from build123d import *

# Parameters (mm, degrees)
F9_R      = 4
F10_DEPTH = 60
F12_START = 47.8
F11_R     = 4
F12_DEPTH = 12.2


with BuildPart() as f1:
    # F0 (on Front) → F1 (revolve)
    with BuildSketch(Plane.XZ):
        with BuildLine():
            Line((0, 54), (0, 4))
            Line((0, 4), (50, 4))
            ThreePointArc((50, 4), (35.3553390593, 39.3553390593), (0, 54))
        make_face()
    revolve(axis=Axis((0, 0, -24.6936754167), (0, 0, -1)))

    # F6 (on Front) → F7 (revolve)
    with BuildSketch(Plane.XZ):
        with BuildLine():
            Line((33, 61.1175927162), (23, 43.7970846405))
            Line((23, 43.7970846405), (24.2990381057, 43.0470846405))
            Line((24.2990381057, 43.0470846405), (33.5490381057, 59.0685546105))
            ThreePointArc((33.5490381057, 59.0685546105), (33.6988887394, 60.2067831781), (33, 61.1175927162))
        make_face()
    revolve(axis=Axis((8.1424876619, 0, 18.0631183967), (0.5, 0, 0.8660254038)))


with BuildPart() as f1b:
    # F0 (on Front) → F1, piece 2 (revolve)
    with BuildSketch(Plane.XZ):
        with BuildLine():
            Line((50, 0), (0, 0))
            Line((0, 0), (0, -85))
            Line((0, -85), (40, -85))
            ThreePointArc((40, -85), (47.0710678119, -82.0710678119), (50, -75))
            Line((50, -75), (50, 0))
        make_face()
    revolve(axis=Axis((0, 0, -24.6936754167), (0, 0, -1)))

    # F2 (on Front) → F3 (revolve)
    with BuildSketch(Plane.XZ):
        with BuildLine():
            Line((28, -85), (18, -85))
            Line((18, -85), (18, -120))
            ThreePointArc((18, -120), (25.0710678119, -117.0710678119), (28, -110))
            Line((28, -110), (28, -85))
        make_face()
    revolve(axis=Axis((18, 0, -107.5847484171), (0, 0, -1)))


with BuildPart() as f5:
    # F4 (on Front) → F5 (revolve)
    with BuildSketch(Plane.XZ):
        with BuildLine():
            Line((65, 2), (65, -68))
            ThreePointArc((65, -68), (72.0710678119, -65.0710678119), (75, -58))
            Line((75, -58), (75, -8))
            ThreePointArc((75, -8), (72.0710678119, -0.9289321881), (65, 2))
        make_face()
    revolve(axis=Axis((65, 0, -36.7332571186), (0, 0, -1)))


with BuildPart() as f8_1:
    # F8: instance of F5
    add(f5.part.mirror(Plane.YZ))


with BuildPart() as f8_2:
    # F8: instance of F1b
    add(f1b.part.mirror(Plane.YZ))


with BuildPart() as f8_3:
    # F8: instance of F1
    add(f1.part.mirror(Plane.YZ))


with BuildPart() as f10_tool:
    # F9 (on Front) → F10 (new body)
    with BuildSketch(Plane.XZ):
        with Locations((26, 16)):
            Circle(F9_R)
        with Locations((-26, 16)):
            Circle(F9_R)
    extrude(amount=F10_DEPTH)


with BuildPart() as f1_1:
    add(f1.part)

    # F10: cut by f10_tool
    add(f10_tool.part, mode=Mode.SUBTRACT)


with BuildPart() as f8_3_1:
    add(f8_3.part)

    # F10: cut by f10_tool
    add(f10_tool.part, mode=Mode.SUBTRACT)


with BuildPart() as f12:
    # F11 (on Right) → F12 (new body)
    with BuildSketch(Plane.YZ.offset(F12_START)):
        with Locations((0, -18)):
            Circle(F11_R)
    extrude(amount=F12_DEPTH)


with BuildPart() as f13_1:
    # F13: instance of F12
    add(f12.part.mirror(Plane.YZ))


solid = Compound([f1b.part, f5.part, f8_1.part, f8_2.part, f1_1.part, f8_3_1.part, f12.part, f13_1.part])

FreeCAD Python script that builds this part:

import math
import FreeCAD as App
import Part
import Sketcher

V = App.Vector
Q = App.Units.Quantity

doc = App.newDocument("Part")
params = doc.addObject("Spreadsheet::Sheet", "Params")
for row, (alias, value) in enumerate([
    ("sketch1_radius", "50 mm"),
    ("revolution_angle", "360 deg"),
    ("sketch2_radius", "1.5 mm"),
    ("sketch2_length", "20 mm"),
    ("sketch2_length2", "1.5 mm"),
    ("revolution2_angle", "360 deg"),
    ("sketch3_radius", "10 mm"),
    ("sketch3_width", "50 mm"),
    ("sketch3_height", "85 mm"),
    ("revolution3_angle", "360 deg"),
    ("sketch4_radius", "10 mm"),
    ("sketch4_height", "35 mm"),
    ("revolution4_angle", "360 deg"),
    ("sketch5_radius", "10 mm"),
    ("sketch5_height", "70 mm"),
    ("revolution5_angle", "360 deg"),
    ("sketch6_diameter", "8 mm"),
    ("pad1_length", "60 mm"),
    ("sketch7_diameter", "8 mm"),
    ("pad2_length", "12.2 mm"),
], start=1):
    params.set(f"A{row}", alias)
    params.set(f"B{row}", "=" + value)
    params.setAlias(f"B{row}", alias)

body = doc.addObject("PartDesign::Body", "Body")

sketch1 = body.newObject("Sketcher::SketchObject", "Sketch")
sketch1.AttachmentSupport = (doc.getObject("XZ_Plane"), [""])
sketch1.MapMode = "FlatFace"
sketch1.addGeometry([
    Part.LineSegment(V(0, 54, 0), V(0, 4, 0)),
    Part.LineSegment(V(0, 4, 0), V(50, 4, 0)),
    Part.ArcOfCircle(Part.Circle(V(0, 4, 0), V(0, 0, 1), 50), math.radians(0), math.radians(90)),
], False)
sketch1.addConstraint([
    Sketcher.Constraint("Coincident", 0, 2, 1, 1),
    Sketcher.Constraint("Coincident", 1, 2, 2, 1),
    Sketcher.Constraint("Coincident", 2, 2, 0, 1),
    Sketcher.Constraint("Vertical", 0),
    Sketcher.Constraint("Horizontal", 1),
    Sketcher.Constraint("Coincident", 0, 2, 2, 3),
    Sketcher.Constraint("PointOnObject", 2, 3, -2),
    Sketcher.Constraint("Radius", 2, Q("50 mm")),
    Sketcher.Constraint("DistanceY", -1, 1, 2, 3, Q("4 mm")),
])
sketch1.setExpression("Constraints[7]", "Params.sketch1_radius")
revolution = body.newObject("PartDesign::Revolution", "Revolution")
revolution.Profile = sketch1
revolution.ReferenceAxis = (sketch1, ["V_Axis"])
revolution.setExpression("Angle", "Params.revolution_angle")

sketch2 = body.newObject("Sketcher::SketchObject", "Sketch001")
sketch2.AttachmentSupport = (doc.getObject("XZ_Plane"), [""])
sketch2.MapMode = "FlatFace"
sketch2.addGeometry([
    Part.LineSegment(V(33, 61.1, 0), V(23, 43.8, 0)),
    Part.LineSegment(V(23, 43.8, 0), V(24.3, 43, 0)),
    Part.LineSegment(V(24.3, 43, 0), V(33.5, 59.1, 0)),
    Part.ArcOfCircle(Part.Circle(V(32.2, 59.8, 0), V(0, 0, 1), 1.5), math.radians(-30), math.radians(60)),
], False)
sketch2.addGeometry(Part.LineSegment(V(23, 43.8, 0), V(33, 61.1, 0)), True)
sketch2.addConstraint([
    Sketcher.Constraint("Coincident", 0, 2, 1, 1),
    Sketcher.Constraint("Coincident", 1, 2, 2, 1),
    Sketcher.Constraint("Tangent", 2, 2, 3, 1),
    Sketcher.Constraint("Coincident", 3, 2, 0, 1),
    Sketcher.Constraint("Coincident", 4, 1, 0, 2),
    Sketcher.Constraint("Coincident", 4, 2, 3, 2),
    Sketcher.Constraint("Perpendicular", 0, 1),
    Sketcher.Constraint("Perpendicular", 1, 2),
    Sketcher.Constraint("Radius", 3, Q("1.5 mm")),
    Sketcher.Constraint("Angle", 0, Q("-120 deg")),
    Sketcher.Constraint("Distance", 0, Q("20 mm")),
    Sketcher.Constraint("DistanceX", -1, 1, 0, 2, Q("23 mm")),
    Sketcher.Constraint("Distance", 1, Q("1.5 mm")),
    Sketcher.Constraint("DistanceY", -1, 1, 3, 3, Q("59.818555 mm")),
])
sketch2.setExpression("Constraints[8]", "Params.sketch2_radius")
sketch2.setExpression("Constraints[10]", "Params.sketch2_length")
sketch2.setExpression("Constraints[12]", "Params.sketch2_length2")
revolution2 = body.newObject("PartDesign::Revolution", "Revolution001")
revolution2.Profile = sketch2
revolution2.ReferenceAxis = (sketch2, ["Axis0"])
revolution2.setExpression("Angle", "Params.revolution2_angle")
body2 = doc.addObject("PartDesign::Body", "Body001")

sketch3 = body2.newObject("Sketcher::SketchObject", "Sketch002")
sketch3.AttachmentSupport = (doc.getObject("XZ_Plane001"), [""])
sketch3.MapMode = "FlatFace"
sketch3.addGeometry([
    Part.LineSegment(V(50, 0, 0), V(0, 0, 0)),
    Part.LineSegment(V(0, 0, 0), V(0, -85, 0)),
    Part.LineSegment(V(0, -85, 0), V(40, -85, 0)),
    Part.ArcOfCircle(Part.Circle(V(40, -75, 0), V(0, 0, 1), 10), math.radians(-90), math.radians(0)),
    Part.LineSegment(V(50, -75, 0), V(50, 0, 0)),
], False)
sketch3.addConstraint([
    Sketcher.Constraint("Coincident", 0, 2, 1, 1),
    Sketcher.Constraint("Coincident", 1, 2, 2, 1),
    Sketcher.Constraint("Tangent", 2, 2, 3, 1),
    Sketcher.Constraint("Tangent", 3, 2, 4, 1),
    Sketcher.Constraint("Coincident", 4, 2, 0, 1),
    Sketcher.Constraint("Horizontal", 0),
    Sketcher.Constraint("Vertical", 1),
    Sketcher.Constraint("Horizontal", 2),
    Sketcher.Constraint("Vertical", 4),
    Sketcher.Constraint("Coincident", 0, 2, -1, 1),
    Sketcher.Constraint("Radius", 3, Q("10 mm")),
    Sketcher.Constraint("DistanceX", 0, 2, 0, 1, Q("50 mm")),
    Sketcher.Constraint("DistanceY", 1, 2, 1, 1, Q("85 mm")),
])
sketch3.setExpression("Constraints[10]", "Params.sketch3_radius")
sketch3.setExpression("Constraints[11]", "Params.sketch3_width")
sketch3.setExpression("Constraints[12]", "Params.sketch3_height")
revolution3 = body2.newObject("PartDesign::Revolution", "Revolution002")
revolution3.Profile = sketch3
revolution3.ReferenceAxis = (sketch3, ["V_Axis"])
revolution3.setExpression("Angle", "Params.revolution3_angle")

sketch4 = body2.newObject("Sketcher::SketchObject", "Sketch003")
sketch4.AttachmentSupport = (doc.getObject("XZ_Plane001"), [""])
sketch4.MapMode = "FlatFace"
sketch4.addGeometry([
    Part.LineSegment(V(28, -85, 0), V(18, -85, 0)),
    Part.LineSegment(V(18, -85, 0), V(18, -120, 0)),
    Part.ArcOfCircle(Part.Circle(V(18, -110, 0), V(0, 0, 1), 10), math.radians(-90), math.radians(0)),
    Part.LineSegment(V(28, -110, 0), V(28, -85, 0)),
], False)
sketch4.addGeometry(Part.LineSegment(V(18, -85, 0), V(18, -120, 0)), True)
sketch4.addConstraint([
    Sketcher.Constraint("Coincident", 0, 2, 1, 1),
    Sketcher.Constraint("Coincident", 1, 2, 2, 1),
    Sketcher.Constraint("Tangent", 2, 2, 3, 1),
    Sketcher.Constraint("Coincident", 3, 2, 0, 1),
    Sketcher.Constraint("Horizontal", 0),
    Sketcher.Constraint("Vertical", 1),
    Sketcher.Constraint("Vertical", 3),
    Sketcher.Constraint("Vertical", 4),
    Sketcher.Constraint("Coincident", 4, 1, 0, 2),
    Sketcher.Constraint("Vertical", 2, 3, 0, 2),
    Sketcher.Constraint("Equal", 1, 4),
    Sketcher.Constraint("Radius", 2, Q("10 mm")),
    Sketcher.Constraint("DistanceY", 1, 2, 1, 1, Q("35 mm")),
    Sketcher.Constraint("DistanceX", -1, 1, 2, 3, Q("18 mm")),
    Sketcher.Constraint("DistanceY", 2, 3, -1, 1, Q("110 mm")),
])
sketch4.setExpression("Constraints[11]", "Params.sketch4_radius")
sketch4.setExpression("Constraints[12]", "Params.sketch4_height")
revolution4 = body2.newObject("PartDesign::Revolution", "Revolution003")
revolution4.Profile = sketch4
revolution4.ReferenceAxis = (sketch4, ["Axis0"])
revolution4.setExpression("Angle", "Params.revolution4_angle")
body3 = doc.addObject("PartDesign::Body", "Body002")

sketch5 = body3.newObject("Sketcher::SketchObject", "Sketch004")
sketch5.AttachmentSupport = (doc.getObject("XZ_Plane002"), [""])
sketch5.MapMode = "FlatFace"
sketch5.addGeometry([
    Part.LineSegment(V(65, 2, 0), V(65, -68, 0)),
    Part.ArcOfCircle(Part.Circle(V(65, -58, 0), V(0, 0, 1), 10), math.radians(-90), math.radians(0)),
    Part.LineSegment(V(75, -58, 0), V(75, -8, 0)),
    Part.ArcOfCircle(Part.Circle(V(65, -8, 0), V(0, 0, 1), 10), math.radians(0), math.radians(90)),
], False)
sketch5.addGeometry(Part.LineSegment(V(65, 2, 0), V(65, -68, 0)), True)
sketch5.addConstraint([
    Sketcher.Constraint("Coincident", 0, 2, 1, 1),
    Sketcher.Constraint("Tangent", 1, 2, 2, 1),
    Sketcher.Constraint("Tangent", 2, 2, 3, 1),
    Sketcher.Constraint("Coincident", 3, 2, 0, 1),
    Sketcher.Constraint("Vertical", 0),
    Sketcher.Constraint("Vertical", 2),
    Sketcher.Constraint("Vertical", 4),
    Sketcher.Constraint("Coincident", 4, 1, 3, 2),
    Sketcher.Constraint("Equal", 1, 3),
    Sketcher.Constraint("Vertical", 3, 3, 0, 2),
    Sketcher.Constraint("Equal", 0, 4),
    Sketcher.Constraint("Radius", 1, Q("10 mm")),
    Sketcher.Constraint("DistanceY", 0, 2, 0, 1, Q("70 mm")),
    Sketcher.Constraint("DistanceX", -1, 1, 1, 3, Q("65 mm")),
    Sketcher.Constraint("DistanceY", 1, 3, -1, 1, Q("58 mm")),
])
sketch5.setExpression("Constraints[11]", "Params.sketch5_radius")
sketch5.setExpression("Constraints[12]", "Params.sketch5_height")
revolution5 = body3.newObject("PartDesign::Revolution", "Revolution004")
revolution5.Profile = sketch5
revolution5.ReferenceAxis = (sketch5, ["Axis0"])
revolution5.setExpression("Angle", "Params.revolution5_angle")
body4 = doc.addObject("PartDesign::Body", "Body003")
doc.recompute()

mirroring = doc.addObject("Part::Mirroring", "Mirroring")
mirroring.Source = body3
mirroring.Base = V(0, 0, 0)
mirroring.Normal = V(1, 0, 0)
body4.BaseFeature = mirroring
doc.recompute()
body5 = doc.addObject("PartDesign::Body", "Body004")
doc.recompute()

mirroring2 = doc.addObject("Part::Mirroring", "Mirroring001")
mirroring2.Source = body2
mirroring2.Base = V(0, 0, 0)
mirroring2.Normal = V(1, 0, 0)
body5.BaseFeature = mirroring2
doc.recompute()
body6 = doc.addObject("PartDesign::Body", "Body005")
doc.recompute()

mirroring3 = doc.addObject("Part::Mirroring", "Mirroring002")
mirroring3.Source = body
mirroring3.Base = V(0, 0, 0)
mirroring3.Normal = V(1, 0, 0)
body6.BaseFeature = mirroring3
doc.recompute()
body7 = doc.addObject("PartDesign::Body", "Body006")
body7.AllowCompound = True

sketch6 = body7.newObject("Sketcher::SketchObject", "Sketch005")
sketch6.AttachmentSupport = (doc.getObject("XZ_Plane006"), [""])
sketch6.MapMode = "FlatFace"
sketch6.addGeometry([
    Part.Circle(V(26, 16, 0), V(0, 0, 1), 4),
    Part.Circle(V(-26, 16, 0), V(0, 0, 1), 4),
], False)
sketch6.addConstraint([
    Sketcher.Constraint("Equal", 0, 1),
    Sketcher.Constraint("Symmetric", 0, 3, 1, 3, -2),
    Sketcher.Constraint("Diameter", 0, Q("8 mm")),
    Sketcher.Constraint("DistanceX", -1, 1, 0, 3, Q("26 mm")),
    Sketcher.Constraint("DistanceY", -1, 1, 0, 3, Q("16 mm")),
])
sketch6.setExpression("Constraints[2]", "Params.sketch6_diameter")
pad1 = body7.newObject("PartDesign::Pad", "Pad")
pad1.Profile = sketch6
pad1.setExpression("Length", "Params.pad1_length")
doc.recompute()

body8 = doc.addObject("PartDesign::Body", "Body007")
body8.BaseFeature = body7
boolean = body.newObject("PartDesign::Boolean", "Boolean")
boolean.Type = "Cut"
boolean.addObjects([body8])
doc.recompute()

boolean2 = body6.newObject("PartDesign::Boolean", "Boolean001")
boolean2.Type = "Cut"
boolean2.addObjects([body7])
body9 = doc.addObject("PartDesign::Body", "Body008")

sketch7 = body9.newObject("Sketcher::SketchObject", "Sketch006")
sketch7.AttachmentSupport = (doc.getObject("YZ_Plane008"), [""])
sketch7.MapMode = "FlatFace"
sketch7.AttachmentOffset = App.Placement(V(0, 0, 47.8), App.Rotation())
sketch7.addGeometry(Part.Circle(V(0, -18, 0), V(0, 0, 1), 4), False)
sketch7.addConstraint([
    Sketcher.Constraint("PointOnObject", 0, 3, -2),
    Sketcher.Constraint("Diameter", 0, Q("8 mm")),
    Sketcher.Constraint("DistanceY", 0, 3, -1, 1, Q("18 mm")),
])
sketch7.setExpression("Constraints[1]", "Params.sketch7_diameter")
pad2 = body9.newObject("PartDesign::Pad", "Pad001")
pad2.Profile = sketch7
pad2.setExpression("Length", "Params.pad2_length")
body10 = doc.addObject("PartDesign::Body", "Body009")
doc.recompute()

mirroring4 = doc.addObject("Part::Mirroring", "Mirroring003")
mirroring4.Source = body9
mirroring4.Base = V(0, 0, 0)
mirroring4.Normal = V(1, 0, 0)
body10.BaseFeature = mirroring4
doc.recompute()
mirroring.Visibility = False
mirroring2.Visibility = False
mirroring3.Visibility = False
mirroring4.Visibility = False

doc.recompute()
